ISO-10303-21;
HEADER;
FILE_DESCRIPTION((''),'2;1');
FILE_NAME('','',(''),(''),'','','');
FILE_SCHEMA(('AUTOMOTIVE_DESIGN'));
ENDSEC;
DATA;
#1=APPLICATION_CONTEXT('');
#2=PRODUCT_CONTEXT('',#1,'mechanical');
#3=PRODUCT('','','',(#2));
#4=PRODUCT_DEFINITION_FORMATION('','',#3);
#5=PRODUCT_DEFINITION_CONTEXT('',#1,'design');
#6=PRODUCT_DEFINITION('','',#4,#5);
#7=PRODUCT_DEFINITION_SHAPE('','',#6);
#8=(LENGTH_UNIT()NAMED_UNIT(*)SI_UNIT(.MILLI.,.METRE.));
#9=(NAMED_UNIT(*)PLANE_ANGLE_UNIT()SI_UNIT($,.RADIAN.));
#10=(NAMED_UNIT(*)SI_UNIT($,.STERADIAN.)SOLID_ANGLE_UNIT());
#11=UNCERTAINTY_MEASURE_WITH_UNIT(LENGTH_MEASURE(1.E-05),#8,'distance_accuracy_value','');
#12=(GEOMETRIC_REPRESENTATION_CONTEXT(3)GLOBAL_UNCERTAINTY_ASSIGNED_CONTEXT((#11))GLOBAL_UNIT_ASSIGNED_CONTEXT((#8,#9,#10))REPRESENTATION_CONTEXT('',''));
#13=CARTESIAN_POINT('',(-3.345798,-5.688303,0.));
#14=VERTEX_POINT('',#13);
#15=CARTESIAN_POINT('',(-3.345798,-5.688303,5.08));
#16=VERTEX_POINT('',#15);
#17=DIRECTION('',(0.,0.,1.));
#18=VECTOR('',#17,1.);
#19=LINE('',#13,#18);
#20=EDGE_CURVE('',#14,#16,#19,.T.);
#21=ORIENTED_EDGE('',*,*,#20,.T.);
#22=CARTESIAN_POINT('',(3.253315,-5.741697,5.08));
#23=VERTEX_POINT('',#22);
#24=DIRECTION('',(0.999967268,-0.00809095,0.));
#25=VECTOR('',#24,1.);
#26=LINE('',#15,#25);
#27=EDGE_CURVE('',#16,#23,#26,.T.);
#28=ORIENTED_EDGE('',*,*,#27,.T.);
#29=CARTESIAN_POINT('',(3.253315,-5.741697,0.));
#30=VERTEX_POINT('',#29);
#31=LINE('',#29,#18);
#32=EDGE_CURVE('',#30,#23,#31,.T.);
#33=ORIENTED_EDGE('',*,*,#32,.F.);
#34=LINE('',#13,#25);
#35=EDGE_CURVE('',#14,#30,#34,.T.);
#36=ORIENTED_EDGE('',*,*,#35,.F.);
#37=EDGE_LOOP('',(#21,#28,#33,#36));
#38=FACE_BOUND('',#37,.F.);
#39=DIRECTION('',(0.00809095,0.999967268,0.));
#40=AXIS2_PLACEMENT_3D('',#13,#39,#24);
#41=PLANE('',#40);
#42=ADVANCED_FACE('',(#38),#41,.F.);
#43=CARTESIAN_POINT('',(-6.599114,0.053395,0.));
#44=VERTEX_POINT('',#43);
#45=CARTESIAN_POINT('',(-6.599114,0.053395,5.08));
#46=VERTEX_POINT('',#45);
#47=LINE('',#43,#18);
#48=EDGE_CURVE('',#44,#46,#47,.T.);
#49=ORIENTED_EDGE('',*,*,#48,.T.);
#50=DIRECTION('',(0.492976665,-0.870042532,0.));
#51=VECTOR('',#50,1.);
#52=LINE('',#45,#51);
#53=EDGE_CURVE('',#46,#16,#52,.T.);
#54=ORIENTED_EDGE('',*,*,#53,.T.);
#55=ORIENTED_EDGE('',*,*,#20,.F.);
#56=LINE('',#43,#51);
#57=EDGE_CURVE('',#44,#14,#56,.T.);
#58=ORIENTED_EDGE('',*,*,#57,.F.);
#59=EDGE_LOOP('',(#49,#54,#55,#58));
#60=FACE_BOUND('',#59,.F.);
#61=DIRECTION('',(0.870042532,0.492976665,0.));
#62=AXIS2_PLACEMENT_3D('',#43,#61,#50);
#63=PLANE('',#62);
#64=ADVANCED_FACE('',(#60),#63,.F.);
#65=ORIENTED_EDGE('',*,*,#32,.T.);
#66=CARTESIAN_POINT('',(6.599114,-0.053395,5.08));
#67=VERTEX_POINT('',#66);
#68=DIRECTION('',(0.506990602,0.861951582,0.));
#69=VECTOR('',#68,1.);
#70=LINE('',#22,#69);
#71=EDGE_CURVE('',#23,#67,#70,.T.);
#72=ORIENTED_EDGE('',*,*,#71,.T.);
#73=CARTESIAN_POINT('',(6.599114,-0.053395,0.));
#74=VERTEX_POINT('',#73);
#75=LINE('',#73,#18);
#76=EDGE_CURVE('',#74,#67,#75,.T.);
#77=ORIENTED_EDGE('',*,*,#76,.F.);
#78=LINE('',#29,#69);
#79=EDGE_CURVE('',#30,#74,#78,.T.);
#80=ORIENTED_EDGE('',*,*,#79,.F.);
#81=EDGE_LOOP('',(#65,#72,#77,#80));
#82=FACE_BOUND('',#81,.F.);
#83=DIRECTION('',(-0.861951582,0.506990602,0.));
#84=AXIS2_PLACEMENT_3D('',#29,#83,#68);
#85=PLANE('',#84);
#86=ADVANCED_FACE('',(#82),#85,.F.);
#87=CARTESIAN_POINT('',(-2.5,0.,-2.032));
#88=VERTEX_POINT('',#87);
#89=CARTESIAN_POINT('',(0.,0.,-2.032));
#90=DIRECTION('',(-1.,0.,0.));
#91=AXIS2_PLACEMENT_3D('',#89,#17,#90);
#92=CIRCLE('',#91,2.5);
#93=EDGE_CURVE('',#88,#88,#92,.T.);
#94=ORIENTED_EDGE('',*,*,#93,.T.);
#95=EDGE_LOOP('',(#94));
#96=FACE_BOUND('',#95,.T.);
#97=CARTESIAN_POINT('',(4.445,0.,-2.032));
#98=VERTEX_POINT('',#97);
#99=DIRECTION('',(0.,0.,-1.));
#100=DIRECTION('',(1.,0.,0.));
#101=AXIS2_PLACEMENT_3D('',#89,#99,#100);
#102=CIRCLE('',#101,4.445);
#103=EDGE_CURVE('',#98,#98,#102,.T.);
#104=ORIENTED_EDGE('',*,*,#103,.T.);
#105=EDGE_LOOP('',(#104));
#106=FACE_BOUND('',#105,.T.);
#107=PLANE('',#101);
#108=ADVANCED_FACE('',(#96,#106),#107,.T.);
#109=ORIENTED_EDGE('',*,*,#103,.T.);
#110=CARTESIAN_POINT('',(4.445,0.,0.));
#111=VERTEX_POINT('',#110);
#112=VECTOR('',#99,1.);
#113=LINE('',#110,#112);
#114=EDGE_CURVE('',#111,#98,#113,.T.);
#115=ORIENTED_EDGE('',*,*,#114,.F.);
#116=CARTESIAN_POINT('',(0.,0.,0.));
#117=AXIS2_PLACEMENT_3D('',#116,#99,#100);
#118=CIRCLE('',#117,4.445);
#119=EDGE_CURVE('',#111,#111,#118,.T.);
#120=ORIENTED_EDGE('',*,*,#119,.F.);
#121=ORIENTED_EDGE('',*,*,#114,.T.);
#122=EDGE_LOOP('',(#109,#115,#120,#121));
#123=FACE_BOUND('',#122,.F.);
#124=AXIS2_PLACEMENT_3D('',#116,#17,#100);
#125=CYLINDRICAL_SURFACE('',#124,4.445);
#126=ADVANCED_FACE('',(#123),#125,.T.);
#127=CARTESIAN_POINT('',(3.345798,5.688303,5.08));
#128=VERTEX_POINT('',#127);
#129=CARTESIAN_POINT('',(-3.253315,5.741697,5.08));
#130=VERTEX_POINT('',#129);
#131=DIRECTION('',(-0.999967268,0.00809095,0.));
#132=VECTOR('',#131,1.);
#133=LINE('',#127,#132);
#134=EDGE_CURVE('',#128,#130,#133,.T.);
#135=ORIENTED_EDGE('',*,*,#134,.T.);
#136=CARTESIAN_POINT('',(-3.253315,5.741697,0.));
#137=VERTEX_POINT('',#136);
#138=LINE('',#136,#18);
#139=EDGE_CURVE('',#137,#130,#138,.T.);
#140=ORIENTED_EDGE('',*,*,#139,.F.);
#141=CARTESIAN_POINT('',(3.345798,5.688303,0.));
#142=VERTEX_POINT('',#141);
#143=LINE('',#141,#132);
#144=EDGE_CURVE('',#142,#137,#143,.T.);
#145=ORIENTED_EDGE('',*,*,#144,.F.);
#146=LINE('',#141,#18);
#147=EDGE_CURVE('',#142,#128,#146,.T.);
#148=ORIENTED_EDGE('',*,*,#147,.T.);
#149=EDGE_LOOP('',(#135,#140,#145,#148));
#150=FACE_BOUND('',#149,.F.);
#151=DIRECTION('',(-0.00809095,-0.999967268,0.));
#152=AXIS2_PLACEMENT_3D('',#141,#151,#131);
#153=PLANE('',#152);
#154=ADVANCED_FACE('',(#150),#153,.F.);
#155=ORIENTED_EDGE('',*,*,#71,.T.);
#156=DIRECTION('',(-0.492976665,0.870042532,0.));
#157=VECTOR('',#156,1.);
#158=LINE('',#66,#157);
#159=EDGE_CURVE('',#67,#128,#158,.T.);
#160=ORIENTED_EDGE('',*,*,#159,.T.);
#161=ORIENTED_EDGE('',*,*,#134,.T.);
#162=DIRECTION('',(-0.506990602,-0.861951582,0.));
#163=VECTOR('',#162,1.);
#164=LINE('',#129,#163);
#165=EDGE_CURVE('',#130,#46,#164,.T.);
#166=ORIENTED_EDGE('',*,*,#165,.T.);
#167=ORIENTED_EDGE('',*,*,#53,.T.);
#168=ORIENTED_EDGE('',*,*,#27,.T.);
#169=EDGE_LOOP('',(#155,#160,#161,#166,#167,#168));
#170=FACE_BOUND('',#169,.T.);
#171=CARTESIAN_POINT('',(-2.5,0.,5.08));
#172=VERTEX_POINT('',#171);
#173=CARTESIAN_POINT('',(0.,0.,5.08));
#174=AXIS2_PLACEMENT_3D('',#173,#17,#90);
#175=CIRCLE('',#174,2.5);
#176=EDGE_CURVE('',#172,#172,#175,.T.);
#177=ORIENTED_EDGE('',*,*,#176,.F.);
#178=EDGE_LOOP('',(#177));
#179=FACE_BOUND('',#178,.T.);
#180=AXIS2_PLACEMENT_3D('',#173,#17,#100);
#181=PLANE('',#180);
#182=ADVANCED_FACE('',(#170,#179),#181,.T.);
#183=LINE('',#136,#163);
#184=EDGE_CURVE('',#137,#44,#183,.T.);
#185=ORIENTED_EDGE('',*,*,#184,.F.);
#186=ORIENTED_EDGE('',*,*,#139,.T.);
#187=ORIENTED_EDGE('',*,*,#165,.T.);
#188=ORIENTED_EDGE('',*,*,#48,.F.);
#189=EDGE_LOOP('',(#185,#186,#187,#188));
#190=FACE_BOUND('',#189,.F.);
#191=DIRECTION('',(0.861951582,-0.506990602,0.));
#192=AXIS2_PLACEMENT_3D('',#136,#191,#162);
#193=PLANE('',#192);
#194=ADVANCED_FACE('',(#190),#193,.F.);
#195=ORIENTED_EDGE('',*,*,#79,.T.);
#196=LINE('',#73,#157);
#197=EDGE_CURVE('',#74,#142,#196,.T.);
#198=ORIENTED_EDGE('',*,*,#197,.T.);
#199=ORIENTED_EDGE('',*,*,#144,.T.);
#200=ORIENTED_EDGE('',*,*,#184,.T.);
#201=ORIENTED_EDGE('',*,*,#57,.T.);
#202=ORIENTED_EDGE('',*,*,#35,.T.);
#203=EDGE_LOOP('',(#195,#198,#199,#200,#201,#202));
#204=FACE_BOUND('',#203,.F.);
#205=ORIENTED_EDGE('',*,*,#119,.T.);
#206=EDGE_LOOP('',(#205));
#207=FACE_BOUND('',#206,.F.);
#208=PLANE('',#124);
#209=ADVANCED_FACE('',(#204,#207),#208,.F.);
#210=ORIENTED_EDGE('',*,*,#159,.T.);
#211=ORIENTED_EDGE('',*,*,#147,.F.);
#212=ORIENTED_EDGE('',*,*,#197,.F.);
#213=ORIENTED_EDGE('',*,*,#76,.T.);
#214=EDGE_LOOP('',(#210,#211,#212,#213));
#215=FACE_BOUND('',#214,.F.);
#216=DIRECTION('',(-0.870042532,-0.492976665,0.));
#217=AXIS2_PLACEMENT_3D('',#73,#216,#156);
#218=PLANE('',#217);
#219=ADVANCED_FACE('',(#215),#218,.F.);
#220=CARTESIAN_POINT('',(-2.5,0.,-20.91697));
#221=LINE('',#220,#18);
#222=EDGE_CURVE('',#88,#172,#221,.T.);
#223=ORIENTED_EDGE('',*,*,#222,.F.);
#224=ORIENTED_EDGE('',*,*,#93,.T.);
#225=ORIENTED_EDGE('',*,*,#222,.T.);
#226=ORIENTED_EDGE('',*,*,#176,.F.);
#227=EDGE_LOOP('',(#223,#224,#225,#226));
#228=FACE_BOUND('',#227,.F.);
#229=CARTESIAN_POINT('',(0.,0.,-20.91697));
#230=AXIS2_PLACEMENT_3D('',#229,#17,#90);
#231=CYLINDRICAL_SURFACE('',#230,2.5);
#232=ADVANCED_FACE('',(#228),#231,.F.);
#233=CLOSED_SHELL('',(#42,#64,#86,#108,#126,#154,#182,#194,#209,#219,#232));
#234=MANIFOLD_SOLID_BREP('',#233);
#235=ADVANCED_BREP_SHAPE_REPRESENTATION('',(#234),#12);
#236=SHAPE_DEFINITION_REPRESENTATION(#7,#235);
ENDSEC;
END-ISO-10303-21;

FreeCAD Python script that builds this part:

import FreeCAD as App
import Part
import Sketcher
Q = App.Units.Quantity


def add_polygon(sketch, points):
    """Adds a closed chain of lines whose ends are joined by coincident constraints."""
    first, n = sketch.GeometryCount, len(points)
    for a, b in zip(points, points[1:] + points[:1]):
        sketch.addGeometry(Part.LineSegment(App.Vector(*a, 0), App.Vector(*b, 0)), False)
    for i in range(n):
        sketch.addConstraint(Sketcher.Constraint("Coincident", first + i, 2, first + (i + 1) % n, 1))

doc = App.newDocument("Part")
body = doc.addObject("PartDesign::Body", "Body")

# Sketch on XY plane
sketch1 = body.newObject("Sketcher::SketchObject", "Sketch")
sketch1.AttachmentSupport = (doc.getObject("XY_Plane"), [""])
sketch1.MapMode = "FlatFace"
add_polygon(sketch1, [(3, 6), (-3, 6), (-7, 0), (-3, -6), (3, -6), (7, 0)])  # lines 0-5
sketch1.addConstraint([
    Sketcher.Constraint("Symmetric", 0, 2, 3, 2, -1, 1),
    Sketcher.Constraint("Symmetric", 1, 2, 4, 2, -1, 1),
    Sketcher.Constraint("Symmetric", 2, 2, 5, 2, -1, 1),
    Sketcher.Constraint("Equal", 0, 1),
    Sketcher.Constraint("Equal", 1, 2),
    Sketcher.Constraint("DistanceY", 2, 2, 0, 2, Q("0.45 in")),
    Sketcher.Constraint("DistanceX", 2, 2, -1, 1, Q("3.345798 mm")),
    Sketcher.Constraint("DistanceX", 1, 2, 0, 2, Q("3.345798 mm")),
    Sketcher.Constraint("DistanceX", 1, 2, 3, 2, Q("9.852429 mm")),
])
pad1 = body.newObject("PartDesign::Pad", "Pad")
pad1.Profile = sketch1
pad1.Length = Q("0.2 in")

# Sketch on XY plane
sketch2 = body.newObject("Sketcher::SketchObject", "Sketch001")
sketch2.AttachmentSupport = (doc.getObject("XY_Plane"), [""])
sketch2.MapMode = "FlatFace"
sketch2.addGeometry(Part.Circle(App.Vector(0, 0, 0), App.Vector(0, 0, 1), 4.4), False)
sketch2.addConstraint([
    Sketcher.Constraint("Coincident", 0, 3, -1, 1),
    Sketcher.Constraint("Diameter", 0, Q("0.35 in")),
])
pad2 = body.newObject("PartDesign::Pad", "Pad001")
pad2.Profile = sketch2
pad2.Length = Q("0.08 in")
pad2.Reversed = True

# Sketch on XY plane
sketch3 = body.newObject("Sketcher::SketchObject", "Sketch002")
sketch3.AttachmentSupport = (doc.getObject("XY_Plane"), [""])
sketch3.MapMode = "FlatFace"
sketch3.AttachmentOffset = App.Placement(App.Vector(0, 0, -0.08 * 25.4), App.Rotation())
sketch3.addGeometry(Part.Circle(App.Vector(0, 0, 0), App.Vector(0, 0, 1), 2.5), False)
sketch3.addConstraint([
    Sketcher.Constraint("Coincident", 0, 3, -1, 1),
    Sketcher.Constraint("Diameter", 0, Q("5 mm")),
])
doc.recompute()
hole = body.newObject("PartDesign::Hole", "Hole")
hole.Profile = sketch3
hole.ThreadType = "None"
hole.Diameter = 5
hole.DepthType = "ThroughAll"
hole.Reversed = True

doc.recompute()
